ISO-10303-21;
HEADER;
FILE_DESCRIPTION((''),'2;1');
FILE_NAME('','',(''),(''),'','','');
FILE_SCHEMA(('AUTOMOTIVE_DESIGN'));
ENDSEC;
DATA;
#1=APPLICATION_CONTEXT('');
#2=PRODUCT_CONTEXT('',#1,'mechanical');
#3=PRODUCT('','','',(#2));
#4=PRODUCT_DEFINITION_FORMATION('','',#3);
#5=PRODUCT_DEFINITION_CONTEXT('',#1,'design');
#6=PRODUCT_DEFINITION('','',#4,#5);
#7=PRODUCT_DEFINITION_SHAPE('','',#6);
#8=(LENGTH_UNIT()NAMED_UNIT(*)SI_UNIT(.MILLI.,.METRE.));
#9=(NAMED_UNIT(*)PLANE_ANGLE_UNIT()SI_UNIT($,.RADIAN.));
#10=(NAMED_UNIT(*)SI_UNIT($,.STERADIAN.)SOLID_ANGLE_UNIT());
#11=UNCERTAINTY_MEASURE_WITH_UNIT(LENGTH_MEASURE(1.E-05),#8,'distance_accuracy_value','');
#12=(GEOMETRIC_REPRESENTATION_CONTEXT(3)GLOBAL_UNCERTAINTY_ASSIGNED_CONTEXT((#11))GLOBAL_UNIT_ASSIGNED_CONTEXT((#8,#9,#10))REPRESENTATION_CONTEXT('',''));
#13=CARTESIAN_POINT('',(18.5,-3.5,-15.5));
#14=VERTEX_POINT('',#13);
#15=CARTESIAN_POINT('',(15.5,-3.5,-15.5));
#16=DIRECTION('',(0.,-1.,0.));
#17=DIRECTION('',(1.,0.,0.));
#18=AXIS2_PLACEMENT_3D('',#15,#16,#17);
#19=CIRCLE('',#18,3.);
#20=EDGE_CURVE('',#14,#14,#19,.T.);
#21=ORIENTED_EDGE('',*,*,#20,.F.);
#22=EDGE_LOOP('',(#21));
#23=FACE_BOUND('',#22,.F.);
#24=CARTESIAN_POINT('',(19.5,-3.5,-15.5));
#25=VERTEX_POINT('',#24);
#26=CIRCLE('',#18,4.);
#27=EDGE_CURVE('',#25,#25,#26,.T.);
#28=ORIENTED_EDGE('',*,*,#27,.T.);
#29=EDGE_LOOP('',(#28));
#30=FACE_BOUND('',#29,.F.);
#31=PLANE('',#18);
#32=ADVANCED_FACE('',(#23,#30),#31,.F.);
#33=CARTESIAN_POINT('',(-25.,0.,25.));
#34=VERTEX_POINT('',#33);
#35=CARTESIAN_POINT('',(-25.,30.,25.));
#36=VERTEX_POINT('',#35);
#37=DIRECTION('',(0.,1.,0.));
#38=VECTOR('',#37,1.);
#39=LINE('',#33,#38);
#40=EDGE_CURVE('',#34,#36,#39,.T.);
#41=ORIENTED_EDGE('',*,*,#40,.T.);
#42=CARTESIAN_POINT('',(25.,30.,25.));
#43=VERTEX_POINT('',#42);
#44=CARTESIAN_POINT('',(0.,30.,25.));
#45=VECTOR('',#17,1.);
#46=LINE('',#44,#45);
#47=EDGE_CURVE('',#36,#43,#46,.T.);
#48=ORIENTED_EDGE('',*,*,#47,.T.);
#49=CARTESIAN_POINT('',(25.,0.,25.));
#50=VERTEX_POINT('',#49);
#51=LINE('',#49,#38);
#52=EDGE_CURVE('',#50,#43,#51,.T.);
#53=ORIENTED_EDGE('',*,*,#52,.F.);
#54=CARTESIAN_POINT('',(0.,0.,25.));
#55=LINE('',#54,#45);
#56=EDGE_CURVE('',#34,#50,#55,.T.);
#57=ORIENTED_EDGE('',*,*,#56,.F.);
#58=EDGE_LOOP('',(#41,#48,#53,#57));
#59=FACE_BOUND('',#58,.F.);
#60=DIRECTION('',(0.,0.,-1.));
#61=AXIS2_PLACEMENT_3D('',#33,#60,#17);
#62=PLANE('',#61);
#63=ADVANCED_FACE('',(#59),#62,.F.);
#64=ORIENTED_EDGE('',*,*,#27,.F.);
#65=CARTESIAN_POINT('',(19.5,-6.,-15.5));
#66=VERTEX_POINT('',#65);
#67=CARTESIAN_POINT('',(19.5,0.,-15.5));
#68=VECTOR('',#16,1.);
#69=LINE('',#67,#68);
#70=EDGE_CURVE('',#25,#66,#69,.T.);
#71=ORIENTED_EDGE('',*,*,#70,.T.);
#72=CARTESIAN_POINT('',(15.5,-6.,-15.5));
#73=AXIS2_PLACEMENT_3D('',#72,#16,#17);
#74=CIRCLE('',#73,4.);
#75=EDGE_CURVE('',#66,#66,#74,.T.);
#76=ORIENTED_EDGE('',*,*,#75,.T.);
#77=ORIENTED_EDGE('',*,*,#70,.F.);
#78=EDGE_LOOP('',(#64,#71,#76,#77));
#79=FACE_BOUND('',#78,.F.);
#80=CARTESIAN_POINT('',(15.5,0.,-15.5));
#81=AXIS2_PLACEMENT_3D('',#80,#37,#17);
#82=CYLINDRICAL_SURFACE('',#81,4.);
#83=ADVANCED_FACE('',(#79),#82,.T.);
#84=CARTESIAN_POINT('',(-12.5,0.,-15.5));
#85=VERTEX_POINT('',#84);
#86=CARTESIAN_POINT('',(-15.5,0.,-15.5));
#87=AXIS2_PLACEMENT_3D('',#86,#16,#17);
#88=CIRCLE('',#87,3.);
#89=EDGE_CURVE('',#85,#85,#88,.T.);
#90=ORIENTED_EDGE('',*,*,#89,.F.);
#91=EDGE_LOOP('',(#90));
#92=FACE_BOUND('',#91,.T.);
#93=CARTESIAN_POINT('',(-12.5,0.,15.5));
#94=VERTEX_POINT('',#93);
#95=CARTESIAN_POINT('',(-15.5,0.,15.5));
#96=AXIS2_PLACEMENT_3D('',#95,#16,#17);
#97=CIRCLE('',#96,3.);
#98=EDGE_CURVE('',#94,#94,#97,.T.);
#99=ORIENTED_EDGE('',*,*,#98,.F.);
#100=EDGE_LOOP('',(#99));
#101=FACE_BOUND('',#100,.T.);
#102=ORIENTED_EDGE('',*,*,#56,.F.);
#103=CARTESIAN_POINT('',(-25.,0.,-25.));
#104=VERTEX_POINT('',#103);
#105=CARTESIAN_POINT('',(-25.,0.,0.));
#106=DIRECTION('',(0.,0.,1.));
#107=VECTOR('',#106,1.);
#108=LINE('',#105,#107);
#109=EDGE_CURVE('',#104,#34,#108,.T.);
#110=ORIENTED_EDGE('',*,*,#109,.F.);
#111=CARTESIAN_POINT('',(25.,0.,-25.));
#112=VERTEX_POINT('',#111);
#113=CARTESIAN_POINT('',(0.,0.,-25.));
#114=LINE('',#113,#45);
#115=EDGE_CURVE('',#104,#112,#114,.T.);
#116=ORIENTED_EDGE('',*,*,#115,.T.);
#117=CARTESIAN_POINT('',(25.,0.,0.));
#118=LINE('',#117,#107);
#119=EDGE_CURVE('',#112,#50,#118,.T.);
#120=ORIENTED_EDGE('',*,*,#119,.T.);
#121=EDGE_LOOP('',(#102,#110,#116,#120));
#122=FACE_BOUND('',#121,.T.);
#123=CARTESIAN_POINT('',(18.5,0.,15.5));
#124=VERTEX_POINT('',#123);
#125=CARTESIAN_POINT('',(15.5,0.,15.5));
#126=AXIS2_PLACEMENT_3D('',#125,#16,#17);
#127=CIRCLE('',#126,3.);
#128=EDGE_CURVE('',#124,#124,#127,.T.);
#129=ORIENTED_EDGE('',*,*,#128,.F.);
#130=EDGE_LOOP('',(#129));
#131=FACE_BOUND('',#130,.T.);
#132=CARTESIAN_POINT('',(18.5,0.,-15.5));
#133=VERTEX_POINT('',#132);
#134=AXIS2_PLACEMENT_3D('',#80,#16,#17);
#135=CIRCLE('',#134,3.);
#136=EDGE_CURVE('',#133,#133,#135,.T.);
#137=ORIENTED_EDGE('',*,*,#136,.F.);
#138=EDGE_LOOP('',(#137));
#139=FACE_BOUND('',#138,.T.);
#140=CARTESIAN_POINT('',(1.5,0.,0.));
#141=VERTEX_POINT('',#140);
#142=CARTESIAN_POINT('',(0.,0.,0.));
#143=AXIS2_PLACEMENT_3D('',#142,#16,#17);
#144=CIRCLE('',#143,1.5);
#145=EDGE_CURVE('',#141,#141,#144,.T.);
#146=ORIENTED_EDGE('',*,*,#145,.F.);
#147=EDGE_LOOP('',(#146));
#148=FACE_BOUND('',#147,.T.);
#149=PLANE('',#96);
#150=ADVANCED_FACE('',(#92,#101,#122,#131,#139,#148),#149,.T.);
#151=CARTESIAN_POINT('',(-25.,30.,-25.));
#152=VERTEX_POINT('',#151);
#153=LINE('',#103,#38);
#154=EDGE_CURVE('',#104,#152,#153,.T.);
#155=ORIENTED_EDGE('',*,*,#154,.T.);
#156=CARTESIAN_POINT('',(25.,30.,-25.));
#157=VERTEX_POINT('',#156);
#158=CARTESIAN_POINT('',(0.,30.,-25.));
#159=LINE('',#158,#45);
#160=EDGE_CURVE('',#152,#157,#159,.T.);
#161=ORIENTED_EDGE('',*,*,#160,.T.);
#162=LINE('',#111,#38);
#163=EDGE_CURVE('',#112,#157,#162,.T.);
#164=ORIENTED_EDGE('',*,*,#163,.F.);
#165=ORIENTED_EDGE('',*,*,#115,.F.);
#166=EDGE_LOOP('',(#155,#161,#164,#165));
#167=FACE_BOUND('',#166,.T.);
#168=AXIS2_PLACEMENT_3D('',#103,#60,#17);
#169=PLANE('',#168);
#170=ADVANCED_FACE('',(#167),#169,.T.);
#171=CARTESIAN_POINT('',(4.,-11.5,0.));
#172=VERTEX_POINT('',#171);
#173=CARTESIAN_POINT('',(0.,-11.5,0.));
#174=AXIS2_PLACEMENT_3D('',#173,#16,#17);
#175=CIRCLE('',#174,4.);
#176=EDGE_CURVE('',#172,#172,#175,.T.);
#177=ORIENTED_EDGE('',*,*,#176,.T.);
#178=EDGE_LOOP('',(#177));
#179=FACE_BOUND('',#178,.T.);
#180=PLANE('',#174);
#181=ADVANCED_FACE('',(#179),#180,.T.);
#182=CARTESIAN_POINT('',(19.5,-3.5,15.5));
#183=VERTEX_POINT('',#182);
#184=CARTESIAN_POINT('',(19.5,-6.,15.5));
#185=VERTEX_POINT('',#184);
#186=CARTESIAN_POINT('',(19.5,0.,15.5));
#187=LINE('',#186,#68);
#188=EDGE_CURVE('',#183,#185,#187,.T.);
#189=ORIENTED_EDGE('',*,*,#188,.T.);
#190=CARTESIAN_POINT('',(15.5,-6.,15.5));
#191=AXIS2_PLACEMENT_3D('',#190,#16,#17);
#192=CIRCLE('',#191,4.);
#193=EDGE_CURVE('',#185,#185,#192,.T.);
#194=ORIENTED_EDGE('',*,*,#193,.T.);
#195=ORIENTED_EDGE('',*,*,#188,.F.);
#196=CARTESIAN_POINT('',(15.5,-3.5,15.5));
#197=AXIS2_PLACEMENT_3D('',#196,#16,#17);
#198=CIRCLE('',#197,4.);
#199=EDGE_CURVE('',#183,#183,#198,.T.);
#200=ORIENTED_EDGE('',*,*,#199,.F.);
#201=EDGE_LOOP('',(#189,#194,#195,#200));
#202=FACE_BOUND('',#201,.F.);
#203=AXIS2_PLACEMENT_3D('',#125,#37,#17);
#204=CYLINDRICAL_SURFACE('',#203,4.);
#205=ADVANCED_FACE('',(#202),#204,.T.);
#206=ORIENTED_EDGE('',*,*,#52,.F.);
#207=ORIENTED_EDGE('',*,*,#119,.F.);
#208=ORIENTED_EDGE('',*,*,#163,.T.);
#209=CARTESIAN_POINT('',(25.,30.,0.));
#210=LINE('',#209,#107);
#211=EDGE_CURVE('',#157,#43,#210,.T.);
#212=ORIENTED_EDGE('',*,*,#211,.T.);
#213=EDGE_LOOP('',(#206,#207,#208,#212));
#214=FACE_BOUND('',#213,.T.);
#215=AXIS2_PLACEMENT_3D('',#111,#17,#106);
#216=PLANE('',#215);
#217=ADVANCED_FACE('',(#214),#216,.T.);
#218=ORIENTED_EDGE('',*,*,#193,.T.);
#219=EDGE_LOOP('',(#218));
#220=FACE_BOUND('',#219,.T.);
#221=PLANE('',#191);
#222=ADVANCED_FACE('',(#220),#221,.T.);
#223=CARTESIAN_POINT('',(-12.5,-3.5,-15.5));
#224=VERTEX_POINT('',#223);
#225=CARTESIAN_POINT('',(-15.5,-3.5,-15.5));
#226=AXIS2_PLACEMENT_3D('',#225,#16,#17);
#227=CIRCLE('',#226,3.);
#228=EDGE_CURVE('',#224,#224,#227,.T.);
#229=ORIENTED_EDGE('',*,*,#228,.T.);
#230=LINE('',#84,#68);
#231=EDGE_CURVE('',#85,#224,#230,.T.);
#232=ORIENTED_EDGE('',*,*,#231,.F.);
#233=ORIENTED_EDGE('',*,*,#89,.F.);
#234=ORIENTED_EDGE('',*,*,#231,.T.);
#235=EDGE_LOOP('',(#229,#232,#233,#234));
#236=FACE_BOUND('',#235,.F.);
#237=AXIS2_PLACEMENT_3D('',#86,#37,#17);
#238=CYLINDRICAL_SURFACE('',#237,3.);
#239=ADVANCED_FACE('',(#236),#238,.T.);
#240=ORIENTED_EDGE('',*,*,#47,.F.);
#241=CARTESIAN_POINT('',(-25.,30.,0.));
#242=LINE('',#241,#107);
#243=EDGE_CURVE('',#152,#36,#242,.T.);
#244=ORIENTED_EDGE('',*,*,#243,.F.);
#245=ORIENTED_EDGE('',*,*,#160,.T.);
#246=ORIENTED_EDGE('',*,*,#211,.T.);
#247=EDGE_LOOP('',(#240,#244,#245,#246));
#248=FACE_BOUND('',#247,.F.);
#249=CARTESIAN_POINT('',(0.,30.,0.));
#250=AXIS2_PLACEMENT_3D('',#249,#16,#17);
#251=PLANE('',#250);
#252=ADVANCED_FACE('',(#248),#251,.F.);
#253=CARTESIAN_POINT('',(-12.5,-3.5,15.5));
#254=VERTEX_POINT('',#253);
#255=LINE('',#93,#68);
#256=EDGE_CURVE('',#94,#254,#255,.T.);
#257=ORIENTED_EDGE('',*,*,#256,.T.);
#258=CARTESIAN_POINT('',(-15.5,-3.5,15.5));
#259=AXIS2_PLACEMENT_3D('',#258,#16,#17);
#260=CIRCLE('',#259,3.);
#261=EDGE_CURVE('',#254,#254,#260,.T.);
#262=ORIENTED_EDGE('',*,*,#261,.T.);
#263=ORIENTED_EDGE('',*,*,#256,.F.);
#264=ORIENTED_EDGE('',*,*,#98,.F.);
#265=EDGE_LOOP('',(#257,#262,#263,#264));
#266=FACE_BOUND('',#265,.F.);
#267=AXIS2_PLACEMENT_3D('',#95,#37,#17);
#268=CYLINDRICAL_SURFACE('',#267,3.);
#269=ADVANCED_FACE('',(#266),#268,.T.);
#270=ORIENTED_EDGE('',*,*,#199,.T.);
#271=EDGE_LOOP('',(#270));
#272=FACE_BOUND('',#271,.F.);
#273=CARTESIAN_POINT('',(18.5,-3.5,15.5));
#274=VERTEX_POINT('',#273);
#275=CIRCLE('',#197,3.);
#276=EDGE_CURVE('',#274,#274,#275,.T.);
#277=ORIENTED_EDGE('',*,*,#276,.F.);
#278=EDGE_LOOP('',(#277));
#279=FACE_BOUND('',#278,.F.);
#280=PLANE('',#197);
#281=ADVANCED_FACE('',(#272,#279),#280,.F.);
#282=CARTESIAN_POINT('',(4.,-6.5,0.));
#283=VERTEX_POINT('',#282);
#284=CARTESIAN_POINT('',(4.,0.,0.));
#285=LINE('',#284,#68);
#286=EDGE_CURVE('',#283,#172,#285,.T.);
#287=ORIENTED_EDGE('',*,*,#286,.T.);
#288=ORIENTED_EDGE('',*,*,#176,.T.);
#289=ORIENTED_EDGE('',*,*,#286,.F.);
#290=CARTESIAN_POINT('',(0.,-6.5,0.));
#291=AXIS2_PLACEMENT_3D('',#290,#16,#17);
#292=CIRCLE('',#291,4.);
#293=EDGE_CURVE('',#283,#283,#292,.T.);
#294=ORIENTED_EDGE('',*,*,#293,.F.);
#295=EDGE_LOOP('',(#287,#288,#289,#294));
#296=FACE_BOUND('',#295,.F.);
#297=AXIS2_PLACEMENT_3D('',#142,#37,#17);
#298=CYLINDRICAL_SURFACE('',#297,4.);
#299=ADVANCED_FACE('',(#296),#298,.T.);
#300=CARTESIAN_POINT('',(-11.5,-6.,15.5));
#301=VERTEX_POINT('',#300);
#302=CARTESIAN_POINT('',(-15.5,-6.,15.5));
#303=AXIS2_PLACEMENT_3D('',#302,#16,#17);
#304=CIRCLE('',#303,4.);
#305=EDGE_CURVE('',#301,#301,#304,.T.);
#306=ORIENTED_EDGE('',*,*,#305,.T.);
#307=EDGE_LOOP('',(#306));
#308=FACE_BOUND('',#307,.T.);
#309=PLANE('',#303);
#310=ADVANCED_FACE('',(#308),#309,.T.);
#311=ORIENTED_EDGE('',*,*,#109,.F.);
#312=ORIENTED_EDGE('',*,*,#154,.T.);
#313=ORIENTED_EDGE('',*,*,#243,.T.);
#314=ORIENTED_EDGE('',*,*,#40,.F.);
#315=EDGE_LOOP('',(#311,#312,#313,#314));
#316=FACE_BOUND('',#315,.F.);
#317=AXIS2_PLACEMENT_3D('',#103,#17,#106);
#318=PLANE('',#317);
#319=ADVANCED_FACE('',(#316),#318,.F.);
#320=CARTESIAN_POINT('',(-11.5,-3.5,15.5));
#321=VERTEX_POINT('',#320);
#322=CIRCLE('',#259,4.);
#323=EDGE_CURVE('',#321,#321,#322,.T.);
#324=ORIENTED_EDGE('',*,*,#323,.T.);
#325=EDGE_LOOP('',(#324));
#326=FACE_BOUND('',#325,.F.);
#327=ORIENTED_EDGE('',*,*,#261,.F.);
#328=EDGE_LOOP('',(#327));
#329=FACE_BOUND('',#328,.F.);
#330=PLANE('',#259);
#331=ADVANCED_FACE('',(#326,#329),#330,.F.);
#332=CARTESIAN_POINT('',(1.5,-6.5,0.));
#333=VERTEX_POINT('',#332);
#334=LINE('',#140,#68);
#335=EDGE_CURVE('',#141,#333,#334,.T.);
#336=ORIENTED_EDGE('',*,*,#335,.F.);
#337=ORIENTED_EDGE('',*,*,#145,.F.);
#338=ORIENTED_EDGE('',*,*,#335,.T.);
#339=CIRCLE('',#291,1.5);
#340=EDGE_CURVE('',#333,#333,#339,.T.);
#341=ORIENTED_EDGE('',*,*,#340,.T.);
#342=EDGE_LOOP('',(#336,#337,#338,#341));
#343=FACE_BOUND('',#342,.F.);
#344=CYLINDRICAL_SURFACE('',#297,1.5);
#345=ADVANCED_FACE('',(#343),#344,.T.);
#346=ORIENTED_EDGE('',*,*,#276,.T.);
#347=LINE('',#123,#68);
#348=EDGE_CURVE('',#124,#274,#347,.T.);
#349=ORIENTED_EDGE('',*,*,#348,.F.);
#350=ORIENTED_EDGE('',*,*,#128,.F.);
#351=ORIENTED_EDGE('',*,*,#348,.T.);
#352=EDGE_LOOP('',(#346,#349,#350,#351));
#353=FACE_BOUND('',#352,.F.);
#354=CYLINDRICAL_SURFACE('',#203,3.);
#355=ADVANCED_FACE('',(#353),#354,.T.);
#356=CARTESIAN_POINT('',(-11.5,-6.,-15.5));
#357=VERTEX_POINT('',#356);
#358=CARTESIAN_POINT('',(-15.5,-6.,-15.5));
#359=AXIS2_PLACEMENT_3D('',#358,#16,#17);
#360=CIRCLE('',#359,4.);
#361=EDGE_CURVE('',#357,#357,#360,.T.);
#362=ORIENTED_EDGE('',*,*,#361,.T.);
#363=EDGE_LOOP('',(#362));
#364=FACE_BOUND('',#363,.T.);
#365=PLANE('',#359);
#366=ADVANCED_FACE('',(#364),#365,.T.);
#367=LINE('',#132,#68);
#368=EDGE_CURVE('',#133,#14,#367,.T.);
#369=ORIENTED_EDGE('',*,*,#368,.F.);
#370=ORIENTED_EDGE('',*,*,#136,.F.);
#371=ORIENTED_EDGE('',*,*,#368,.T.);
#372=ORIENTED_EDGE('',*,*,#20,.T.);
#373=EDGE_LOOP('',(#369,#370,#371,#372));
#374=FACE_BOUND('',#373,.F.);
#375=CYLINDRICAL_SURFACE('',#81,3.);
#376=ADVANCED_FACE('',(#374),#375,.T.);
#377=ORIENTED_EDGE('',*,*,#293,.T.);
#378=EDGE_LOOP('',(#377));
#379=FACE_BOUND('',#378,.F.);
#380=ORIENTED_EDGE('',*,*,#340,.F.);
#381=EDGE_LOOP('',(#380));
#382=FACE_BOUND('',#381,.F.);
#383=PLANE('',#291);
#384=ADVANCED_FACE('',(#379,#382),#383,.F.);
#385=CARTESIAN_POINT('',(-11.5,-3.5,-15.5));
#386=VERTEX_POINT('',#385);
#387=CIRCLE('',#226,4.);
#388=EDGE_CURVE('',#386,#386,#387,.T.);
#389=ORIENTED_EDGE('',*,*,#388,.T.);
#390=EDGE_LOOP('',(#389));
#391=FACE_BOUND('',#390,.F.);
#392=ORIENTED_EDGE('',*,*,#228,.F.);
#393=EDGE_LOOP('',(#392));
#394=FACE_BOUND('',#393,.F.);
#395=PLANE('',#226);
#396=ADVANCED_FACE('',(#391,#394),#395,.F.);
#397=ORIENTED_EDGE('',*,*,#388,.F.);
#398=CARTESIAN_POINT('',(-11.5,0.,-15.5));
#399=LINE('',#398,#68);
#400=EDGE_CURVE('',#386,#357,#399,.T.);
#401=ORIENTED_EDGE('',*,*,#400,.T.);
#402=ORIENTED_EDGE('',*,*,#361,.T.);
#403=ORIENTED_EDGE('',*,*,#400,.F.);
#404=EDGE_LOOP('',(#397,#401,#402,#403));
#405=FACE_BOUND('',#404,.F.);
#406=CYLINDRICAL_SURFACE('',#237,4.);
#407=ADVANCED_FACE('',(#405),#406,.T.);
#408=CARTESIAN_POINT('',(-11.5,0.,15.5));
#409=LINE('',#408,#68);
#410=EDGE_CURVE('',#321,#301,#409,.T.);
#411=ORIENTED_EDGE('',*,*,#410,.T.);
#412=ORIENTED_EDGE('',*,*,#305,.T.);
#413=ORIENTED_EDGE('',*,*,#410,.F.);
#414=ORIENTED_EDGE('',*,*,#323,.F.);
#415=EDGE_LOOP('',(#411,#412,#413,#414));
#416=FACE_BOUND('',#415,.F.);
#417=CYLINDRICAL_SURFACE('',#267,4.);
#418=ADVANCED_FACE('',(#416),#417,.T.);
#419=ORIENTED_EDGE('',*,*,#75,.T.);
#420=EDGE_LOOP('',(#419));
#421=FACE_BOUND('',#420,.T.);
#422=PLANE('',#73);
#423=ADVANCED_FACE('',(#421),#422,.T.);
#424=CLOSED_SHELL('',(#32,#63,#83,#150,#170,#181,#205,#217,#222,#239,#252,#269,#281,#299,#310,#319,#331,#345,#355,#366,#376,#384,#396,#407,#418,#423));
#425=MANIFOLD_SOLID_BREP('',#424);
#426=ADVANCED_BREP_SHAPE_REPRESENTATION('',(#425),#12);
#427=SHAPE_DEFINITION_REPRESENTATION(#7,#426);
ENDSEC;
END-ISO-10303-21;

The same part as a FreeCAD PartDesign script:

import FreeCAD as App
import Part
import Sketcher
from FreeCAD import Vector

doc = App.newDocument("Part")
body = doc.addObject("PartDesign::Body", "Body")

sketch1 = body.newObject("Sketcher::SketchObject", "Sketch")
sketch1.AttachmentSupport = (doc.getObject("XZ_Plane"), [""])
sketch1.MapMode = "FlatFace"
sketch1.addGeometry([
    Part.LineSegment(Vector(-25, 25, 0), Vector(-25, -25, 0)),
    Part.LineSegment(Vector(-25, -25, 0), Vector(25, -25, 0)),
    Part.LineSegment(Vector(25, -25, 0), Vector(25, 25, 0)),
    Part.LineSegment(Vector(25, 25, 0), Vector(-25, 25, 0)),
], False)
sketch1.addConstraint([
    Sketcher.Constraint("Coincident", 0, 2, 1, 1),
    Sketcher.Constraint("Coincident", 1, 2, 2, 1),
    Sketcher.Constraint("Coincident", 2, 2, 3, 1),
    Sketcher.Constraint("Coincident", 3, 2, 0, 1),
    Sketcher.Constraint("Vertical", 0),
    Sketcher.Constraint("Horizontal", 1),
    Sketcher.Constraint("Vertical", 2),
    Sketcher.Constraint("Horizontal", 3),
    Sketcher.Constraint("Symmetric", 0, 2, 2, 2, -1, 1),
    Sketcher.Constraint("Equal", 3, 0),
    Sketcher.Constraint("DistanceX", 1, 1, 1, 2, 50.0),
])
pad1 = body.newObject("PartDesign::Pad", "Pad")
pad1.Profile = sketch1
pad1.Length = 30
pad1.Reversed = True

sketch2 = body.newObject("Sketcher::SketchObject", "Sketch001")
sketch2.AttachmentSupport = (doc.getObject("XZ_Plane"), [""])
sketch2.MapMode = "FlatFace"
sketch2.addGeometry([
    Part.Circle(Vector(-15.5, 15.5, 0), Vector(0, 0, 1), 4),
    Part.Circle(Vector(-15.5, 15.5, 0), Vector(0, 0, 1), 3),
    Part.Circle(Vector(15.5, 15.5, 0), Vector(0, 0, 1), 4),
    Part.Circle(Vector(15.5, 15.5, 0), Vector(0, 0, 1), 3),
    Part.Circle(Vector(15.5, -15.5, 0), Vector(0, 0, 1), 4),
    Part.Circle(Vector(15.5, -15.5, 0), Vector(0, 0, 1), 3),
    Part.Circle(Vector(-15.5, -15.5, 0), Vector(0, 0, 1), 4),
    Part.Circle(Vector(-15.5, -15.5, 0), Vector(0, 0, 1), 3),
], False)
sketch2.addConstraint([
    Sketcher.Constraint("Coincident", 1, 3, 0, 3),
    Sketcher.Constraint("Coincident", 3, 3, 2, 3),
    Sketcher.Constraint("Coincident", 5, 3, 4, 3),
    Sketcher.Constraint("Coincident", 7, 3, 6, 3),
    Sketcher.Constraint("Equal", 0, 2),
    Sketcher.Constraint("Equal", 1, 3),
    Sketcher.Constraint("Equal", 2, 4),
    Sketcher.Constraint("Equal", 3, 5),
    Sketcher.Constraint("Equal", 4, 6),
    Sketcher.Constraint("Equal", 5, 7),
    Sketcher.Constraint("Symmetric", 0, 3, 4, 3, -1, 1),
    Sketcher.Constraint("Symmetric", 2, 3, 6, 3, -1, 1),
    Sketcher.Constraint("Symmetric", 0, 3, 2, 3, -2),
    Sketcher.Constraint("Diameter", 0, 8.0),
    Sketcher.Constraint("Diameter", 1, 6.0),
    Sketcher.Constraint("DistanceX", 0, 3, 2, 3, 31.0),
    Sketcher.Constraint("DistanceY", 4, 3, 2, 3, 31.0),
])
pad2 = body.newObject("PartDesign::Pad", "Pad001")
pad2.Profile = sketch2
pad2.Length = 6

sketch3 = body.newObject("Sketcher::SketchObject", "Sketch002")
sketch3.AttachmentSupport = (doc.getObject("XZ_Plane"), [""])
sketch3.MapMode = "FlatFace"
sketch3.addGeometry([
    Part.Circle(Vector(-15.5, 15.5, 0), Vector(0, 0, 1), 3),
    Part.Circle(Vector(15.5, 15.5, 0), Vector(0, 0, 1), 3),
    Part.Circle(Vector(15.5, -15.5, 0), Vector(0, 0, 1), 3),
    Part.Circle(Vector(-15.5, -15.5, 0), Vector(0, 0, 1), 3),
], False)
sketch3.addConstraint([
    Sketcher.Constraint("Equal", 0, 1),
    Sketcher.Constraint("Equal", 1, 2),
    Sketcher.Constraint("Equal", 2, 3),
    Sketcher.Constraint("Symmetric", 0, 3, 2, 3, -1, 1),
    Sketcher.Constraint("Symmetric", 1, 3, 3, 3, -1, 1),
    Sketcher.Constraint("Symmetric", 0, 3, 1, 3, -2),
    Sketcher.Constraint("Diameter", 0, 6.0),
    Sketcher.Constraint("DistanceX", 0, 3, 1, 3, 31.0),
    Sketcher.Constraint("DistanceY", 2, 3, 1, 3, 31.0),
])
pad3 = body.newObject("PartDesign::Pad", "Pad002")
pad3.Profile = sketch3
pad3.Length = 6

sketch4 = body.newObject("Sketcher::SketchObject", "Sketch003")
sketch4.AttachmentSupport = (doc.getObject("XZ_Plane"), [""])
sketch4.MapMode = "FlatFace"
sketch4.addGeometry(Part.Circle(Vector(0, 0, 0), Vector(0, 0, 1), 4), False)
sketch4.addConstraint([
    Sketcher.Constraint("Coincident", 0, 3, -1, 1),
    Sketcher.Constraint("Diameter", 0, 8.0),
])
pad4 = body.newObject("PartDesign::Pad", "Pad003")
pad4.Profile = sketch4
pad4.Length = 11.5

sketch5 = body.newObject("Sketcher::SketchObject", "Sketch004")
sketch5.AttachmentSupport = (doc.getObject("XZ_Plane"), [""])
sketch5.MapMode = "FlatFace"
sketch5.addGeometry([
    Part.Circle(Vector(-15.5, -15.5, 0), Vector(0, 0, 1), 4),
    Part.Circle(Vector(-15.5, -15.5, 0), Vector(0, 0, 1), 3),
    Part.Circle(Vector(15.5, -15.5, 0), Vector(0, 0, 1), 4),
    Part.Circle(Vector(15.5, -15.5, 0), Vector(0, 0, 1), 3),
    Part.Circle(Vector(15.5, 15.5, 0), Vector(0, 0, 1), 4),
    Part.Circle(Vector(15.5, 15.5, 0), Vector(0, 0, 1), 3),
    Part.Circle(Vector(-15.5, 15.5, 0), Vector(0, 0, 1), 4),
    Part.Circle(Vector(-15.5, 15.5, 0), Vector(0, 0, 1), 3),
], False)
sketch5.addConstraint([
    Sketcher.Constraint("Coincident", 1, 3, 0, 3),
    Sketcher.Constraint("Coincident", 3, 3, 2, 3),
    Sketcher.Constraint("Coincident", 5, 3, 4, 3),
    Sketcher.Constraint("Coincident", 7, 3, 6, 3),
    Sketcher.Constraint("Equal", 0, 2),
    Sketcher.Constraint("Equal", 1, 3),
    Sketcher.Constraint("Equal", 2, 4),
    Sketcher.Constraint("Equal", 3, 5),
    Sketcher.Constraint("Equal", 4, 6),
    Sketcher.Constraint("Equal", 5, 7),
    Sketcher.Constraint("Symmetric", 0, 3, 4, 3, -1, 1),
    Sketcher.Constraint("Symmetric", 2, 3, 6, 3, -1, 1),
    Sketcher.Constraint("Symmetric", 0, 3, 2, 3, -2),
    Sketcher.Constraint("Diameter", 0, 8.0),
    Sketcher.Constraint("Diameter", 1, 6.0),
    Sketcher.Constraint("DistanceX", 0, 3, 2, 3, 31.0),
    Sketcher.Constraint("DistanceY", 2, 3, 4, 3, 31.0),
])
pocket1 = body.newObject("PartDesign::Pocket", "Pocket")
pocket1.Profile = sketch5
pocket1.Length = 3.5
pocket1.Reversed = True

sketch6 = body.newObject("Sketcher::SketchObject", "Sketch005")
sketch6.AttachmentSupport = (doc.getObject("XZ_Plane"), [""])
sketch6.MapMode = "FlatFace"
sketch6.addGeometry([
    Part.Circle(Vector(0, 0, 0), Vector(0, 0, 1), 4),
    Part.Circle(Vector(0, 0, 0), Vector(0, 0, 1), 1.5),
], False)
sketch6.addConstraint([
    Sketcher.Constraint("Coincident", 0, 3, -1, 1),
    Sketcher.Constraint("Coincident", 1, 3, -1, 1),
    Sketcher.Constraint("Diameter", 0, 8.0),
    Sketcher.Constraint("Diameter", 1, 3.0),
])
pocket2 = body.newObject("PartDesign::Pocket", "Pocket001")
pocket2.Profile = sketch6
pocket2.Length = 6.5
pocket2.Reversed = True

doc.recompute()
